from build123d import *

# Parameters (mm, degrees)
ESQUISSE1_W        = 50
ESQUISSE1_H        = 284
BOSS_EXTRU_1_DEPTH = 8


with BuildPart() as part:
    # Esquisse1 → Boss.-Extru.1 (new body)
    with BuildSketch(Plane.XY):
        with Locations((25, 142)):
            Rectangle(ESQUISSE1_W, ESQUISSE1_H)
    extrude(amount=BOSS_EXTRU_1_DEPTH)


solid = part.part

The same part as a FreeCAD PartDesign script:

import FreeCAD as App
import Part
import Sketcher

V = App.Vector


def add_polygon(sketch, points):
    """Adds a closed chain of lines whose ends are joined by coincident constraints."""
    first, n = sketch.GeometryCount, len(points)
    for a, b in zip(points, points[1:] + points[:1]):
        sketch.addGeometry(Part.LineSegment(App.Vector(*a, 0), App.Vector(*b, 0)), False)
    for i in range(n):
        sketch.addConstraint(Sketcher.Constraint("Coincident", first + i, 2, first + (i + 1) % n, 1))

doc = App.newDocument("Part")
body = doc.addObject("PartDesign::Body", "Body")

sketch1 = body.newObject("Sketcher::SketchObject", "Sketch")
sketch1.AttachmentSupport = (doc.getObject("XY_Plane"), [""])
sketch1.MapMode = "FlatFace"
add_polygon(sketch1, [(0, 284), (0, 0), (50, 0), (50, 284)])
sketch1.addConstraint(Sketcher.Constraint("Vertical", 0))
sketch1.addConstraint(Sketcher.Constraint("Horizontal", 1))
sketch1.addConstraint(Sketcher.Constraint("Vertical", 2))
sketch1.addConstraint(Sketcher.Constraint("Horizontal", 3))
sketch1.addConstraint(Sketcher.Constraint("Coincident", 0, 2, -1, 1))
sketch1.addConstraint(Sketcher.Constraint("DistanceX", 1, 1, 1, 2, 50.0))
sketch1.addConstraint(Sketcher.Constraint("DistanceY", 0, 2, 0, 1, 284.0))
pad1 = body.newObject("PartDesign::Pad", "Pad")
pad1.Profile = sketch1
pad1.Length = 8

doc.recompute()
